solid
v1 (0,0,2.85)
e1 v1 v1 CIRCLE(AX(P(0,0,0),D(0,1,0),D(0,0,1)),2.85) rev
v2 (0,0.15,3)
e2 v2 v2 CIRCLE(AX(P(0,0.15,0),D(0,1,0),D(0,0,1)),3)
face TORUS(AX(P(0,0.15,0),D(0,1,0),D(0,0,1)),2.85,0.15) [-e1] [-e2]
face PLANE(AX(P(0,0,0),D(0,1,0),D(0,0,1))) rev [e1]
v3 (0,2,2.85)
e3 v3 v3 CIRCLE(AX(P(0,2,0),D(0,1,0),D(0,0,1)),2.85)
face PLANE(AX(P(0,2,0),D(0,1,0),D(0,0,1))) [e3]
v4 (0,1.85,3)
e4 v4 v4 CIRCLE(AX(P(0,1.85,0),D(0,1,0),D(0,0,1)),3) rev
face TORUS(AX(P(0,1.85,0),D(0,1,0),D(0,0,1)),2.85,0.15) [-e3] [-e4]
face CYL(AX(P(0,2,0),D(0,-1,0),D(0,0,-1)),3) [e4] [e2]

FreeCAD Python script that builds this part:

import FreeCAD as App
import Part
import Sketcher
Q = App.Units.Quantity


def edges_at(feature, points):
    """Names of the edges that pass closest to the given points."""
    edges = feature.Shape.Edges
    near = lambda p: min(range(len(edges)), key=lambda i: edges[i].distToShape(Part.Vertex(*p))[0])
    return sorted({f"Edge{near(p) + 1}" for p in points})

doc = App.newDocument("Part")
body = doc.addObject("PartDesign::Body", "Body")

# Sketch on XZ plane
sketch1 = doc.addObject("Sketcher::SketchObject", "Sketch")
body.addObject(sketch1)
sketch1.AttachmentSupport = (doc.XZ_Plane, [""])
sketch1.MapMode = "FlatFace"
sketch1.addGeometry(Part.Circle(App.Vector(0, 0, 0), App.Vector(0, 0, 1), 3), False)
sketch1.addConstraint(Sketcher.Constraint("Coincident", 0, 3, -1, 1))
sketch1.addConstraint(Sketcher.Constraint("Diameter", 0, Q("6 mm")))
pad1 = doc.addObject("PartDesign::Pad", "Pad")
body.addObject(pad1)
pad1.Profile = sketch1
pad1.Length = 2
pad1.Reversed = True
doc.recompute()

fillet = doc.addObject("PartDesign::Fillet", "Fillet")
body.addObject(fillet)
fillet.Base = (pad1, edges_at(pad1, [(0, 0, -3), (0, 2, -3)]))
fillet.Radius = 0.15

doc.recompute()
